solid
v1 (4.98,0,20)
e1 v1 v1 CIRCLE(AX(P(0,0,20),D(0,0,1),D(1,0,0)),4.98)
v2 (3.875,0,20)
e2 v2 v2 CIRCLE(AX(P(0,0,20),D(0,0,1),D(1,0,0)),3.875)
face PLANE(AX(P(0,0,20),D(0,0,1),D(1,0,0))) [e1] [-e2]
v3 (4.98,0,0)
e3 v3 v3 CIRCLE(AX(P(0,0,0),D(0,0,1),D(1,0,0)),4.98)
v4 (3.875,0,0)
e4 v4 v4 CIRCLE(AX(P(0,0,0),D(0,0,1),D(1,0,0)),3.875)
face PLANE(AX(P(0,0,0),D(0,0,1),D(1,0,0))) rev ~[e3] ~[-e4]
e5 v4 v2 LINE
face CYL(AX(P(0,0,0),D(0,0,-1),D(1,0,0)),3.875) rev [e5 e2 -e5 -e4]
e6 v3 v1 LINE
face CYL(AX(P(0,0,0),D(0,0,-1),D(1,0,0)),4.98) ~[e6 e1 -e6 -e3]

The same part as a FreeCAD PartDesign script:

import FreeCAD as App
import Part
import Sketcher
from FreeCAD import Vector
Q = App.Units.Quantity

doc = App.newDocument("Part")
body = doc.addObject("PartDesign::Body", "Body")

# Sketch on XY plane
sketch1 = body.newObject("Sketcher::SketchObject", "Sketch")
sketch1.AttachmentSupport = (doc.getObject("XY_Plane"), [""])
sketch1.MapMode = "FlatFace"
sketch1.addGeometry(Part.Circle(Vector(0, 0, 0), Vector(0, 0, 1), 4.98), False)
sketch1.addGeometry(Part.Circle(Vector(0, 0, 0), Vector(0, 0, 1), 3.875), False)
sketch1.addConstraint(Sketcher.Constraint("Coincident", 0, 3, -1, 1))
sketch1.addConstraint(Sketcher.Constraint("Coincident", 1, 3, -1, 1))
sketch1.addConstraint(Sketcher.Constraint("Diameter", 0, Q("9.96 mm")))
sketch1.addConstraint(Sketcher.Constraint("Diameter", 1, Q("7.75 mm")))
pad1 = body.newObject("PartDesign::Pad", "Pad")
pad1.Profile = sketch1
pad1.Length = 20

doc.recompute()
